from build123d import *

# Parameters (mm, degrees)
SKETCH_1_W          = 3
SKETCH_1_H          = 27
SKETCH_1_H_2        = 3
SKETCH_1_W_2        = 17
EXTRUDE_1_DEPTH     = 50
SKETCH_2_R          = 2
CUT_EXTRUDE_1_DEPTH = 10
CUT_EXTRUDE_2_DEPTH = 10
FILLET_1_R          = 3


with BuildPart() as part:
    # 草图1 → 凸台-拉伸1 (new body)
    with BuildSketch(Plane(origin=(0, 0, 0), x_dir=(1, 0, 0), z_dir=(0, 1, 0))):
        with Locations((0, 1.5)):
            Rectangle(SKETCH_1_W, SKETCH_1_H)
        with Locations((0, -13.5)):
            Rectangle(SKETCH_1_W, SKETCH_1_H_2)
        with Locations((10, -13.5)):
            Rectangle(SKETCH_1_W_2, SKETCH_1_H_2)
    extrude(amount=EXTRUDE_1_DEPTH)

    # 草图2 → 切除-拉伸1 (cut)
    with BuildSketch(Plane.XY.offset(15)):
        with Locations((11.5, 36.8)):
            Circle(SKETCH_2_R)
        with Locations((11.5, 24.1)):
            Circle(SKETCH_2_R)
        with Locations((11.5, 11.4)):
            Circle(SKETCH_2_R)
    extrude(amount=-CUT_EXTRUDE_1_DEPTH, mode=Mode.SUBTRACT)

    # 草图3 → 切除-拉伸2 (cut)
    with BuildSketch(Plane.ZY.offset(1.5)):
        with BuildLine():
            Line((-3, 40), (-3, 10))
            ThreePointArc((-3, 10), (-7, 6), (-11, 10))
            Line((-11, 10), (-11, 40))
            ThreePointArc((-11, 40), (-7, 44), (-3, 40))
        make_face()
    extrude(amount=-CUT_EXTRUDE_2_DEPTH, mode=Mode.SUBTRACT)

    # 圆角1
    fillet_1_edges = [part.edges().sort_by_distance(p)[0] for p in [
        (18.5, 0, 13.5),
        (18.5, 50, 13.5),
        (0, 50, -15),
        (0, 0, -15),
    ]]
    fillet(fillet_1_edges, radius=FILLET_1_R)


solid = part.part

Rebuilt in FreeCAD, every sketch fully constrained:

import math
import FreeCAD as App
import Part
import Sketcher

V = App.Vector


def edges_at(feature, points):
    """Names of the edges that pass closest to the given points."""
    edges = feature.Shape.Edges
    near = lambda p: min(range(len(edges)), key=lambda i: edges[i].distToShape(Part.Vertex(*p))[0])
    return sorted({f"Edge{near(p) + 1}" for p in points})

doc = App.newDocument("Part")
body = doc.addObject("PartDesign::Body", "Body")

sketch1 = body.newObject("Sketcher::SketchObject", "Sketch")
sketch1.AttachmentSupport = (doc.getObject("XZ_Plane"), [""])
sketch1.MapMode = "FlatFace"
sketch1.addGeometry([
    Part.LineSegment(V(-1.5, -15, 0), V(-1.5, 15, 0)),
    Part.LineSegment(V(-1.5, 15, 0), V(18.5, 15, 0)),
    Part.LineSegment(V(18.5, 15, 0), V(18.5, 12, 0)),
    Part.LineSegment(V(18.5, 12, 0), V(1.5, 12, 0)),
    Part.LineSegment(V(1.5, 12, 0), V(1.5, -15, 0)),
    Part.LineSegment(V(1.5, -15, 0), V(-1.5, -15, 0)),
], False)
sketch1.addConstraint([
    Sketcher.Constraint("Coincident", 0, 2, 1, 1),
    Sketcher.Constraint("Coincident", 1, 2, 2, 1),
    Sketcher.Constraint("Coincident", 2, 2, 3, 1),
    Sketcher.Constraint("Coincident", 3, 2, 4, 1),
    Sketcher.Constraint("Coincident", 4, 2, 5, 1),
    Sketcher.Constraint("Coincident", 5, 2, 0, 1),
    Sketcher.Constraint("Vertical", 0),
    Sketcher.Constraint("Horizontal", 1),
    Sketcher.Constraint("Vertical", 2),
    Sketcher.Constraint("Horizontal", 3),
    Sketcher.Constraint("Vertical", 4),
    Sketcher.Constraint("Horizontal", 5),
    Sketcher.Constraint("Symmetric", 0, 2, 4, 2, -1, 1),
    Sketcher.Constraint("Equal", 5, 2),
    Sketcher.Constraint("DistanceX", 1, 1, 1, 2, 20.0),
    Sketcher.Constraint("DistanceX", 3, 2, 3, 1, 17.0),
    Sketcher.Constraint("DistanceY", 0, 1, 0, 2, 30.0),
])
pad1 = body.newObject("PartDesign::Pad", "Pad")
pad1.Profile = sketch1
pad1.Length = 50
pad1.Reversed = True

sketch2 = body.newObject("Sketcher::SketchObject", "Sketch001")
sketch2.AttachmentSupport = (doc.getObject("XY_Plane"), [""])
sketch2.MapMode = "FlatFace"
sketch2.AttachmentOffset = App.Placement(V(0, 0, 15), App.Rotation())
sketch2.addGeometry([
    Part.Circle(V(11.5, 36.8, 0), V(0, 0, 1), 2),
    Part.Circle(V(11.5, 24.1, 0), V(0, 0, 1), 2),
    Part.Circle(V(11.5, 11.4, 0), V(0, 0, 1), 2),
], False)
sketch2.addConstraint([
    Sketcher.Constraint("Equal", 0, 1),
    Sketcher.Constraint("Equal", 1, 2),
    Sketcher.Constraint("Vertical", 0, 3, 1, 3),
    Sketcher.Constraint("Vertical", 1, 3, 2, 3),
    Sketcher.Constraint("Diameter", 0, 4.0),
    Sketcher.Constraint("DistanceX", -1, 1, 0, 3, 11.5),
    Sketcher.Constraint("DistanceY", -1, 1, 0, 3, 36.8),
    Sketcher.Constraint("DistanceY", -1, 1, 1, 3, 24.1),
    Sketcher.Constraint("DistanceY", -1, 1, 2, 3, 11.4),
])
pocket1 = body.newObject("PartDesign::Pocket", "Pocket")
pocket1.Profile = sketch2
pocket1.Length = 10

sketch3 = body.newObject("Sketcher::SketchObject", "Sketch002")
sketch3.AttachmentSupport = (doc.getObject("YZ_Plane"), [""])
sketch3.MapMode = "FlatFace"
sketch3.AttachmentOffset = App.Placement(V(0, 0, -1.5), App.Rotation())
sketch3.addGeometry([
    Part.LineSegment(V(10, -3, 0), V(40, -3, 0)),
    Part.ArcOfCircle(Part.Circle(V(40, -7, 0), V(0, 0, 1), 4), math.radians(-90), math.radians(90)),
    Part.LineSegment(V(40, -11, 0), V(10, -11, 0)),
    Part.ArcOfCircle(Part.Circle(V(10, -7, 0), V(0, 0, 1), 4), math.radians(90), math.radians(270)),
], False)
sketch3.addConstraint([
    Sketcher.Constraint("Tangent", 0, 2, 1, 2),
    Sketcher.Constraint("Tangent", 1, 1, 2, 1),
    Sketcher.Constraint("Tangent", 2, 2, 3, 2),
    Sketcher.Constraint("Tangent", 3, 1, 0, 1),
    Sketcher.Constraint("Horizontal", 0),
    Sketcher.Constraint("Horizontal", 2),
    Sketcher.Constraint("Radius", 1, 4.0),
    Sketcher.Constraint("DistanceX", 0, 1, 0, 2, 30.0),
    Sketcher.Constraint("DistanceX", -1, 1, 1, 3, 40.0),
    Sketcher.Constraint("DistanceY", 1, 3, -1, 1, 7.0),
])
pocket2 = body.newObject("PartDesign::Pocket", "Pocket001")
pocket2.Profile = sketch3
pocket2.Length = 10
pocket2.Reversed = True
doc.recompute()

fillet = body.newObject("PartDesign::Fillet", "Fillet")
fillet.Base = (pocket2, edges_at(pocket2, [
    (18.5, 0, 13.5),
    (18.5, 50, 13.5),
    (0, 50, -15),
    (0, 0, -15),
]))
fillet.Radius = 3

doc.recompute()
